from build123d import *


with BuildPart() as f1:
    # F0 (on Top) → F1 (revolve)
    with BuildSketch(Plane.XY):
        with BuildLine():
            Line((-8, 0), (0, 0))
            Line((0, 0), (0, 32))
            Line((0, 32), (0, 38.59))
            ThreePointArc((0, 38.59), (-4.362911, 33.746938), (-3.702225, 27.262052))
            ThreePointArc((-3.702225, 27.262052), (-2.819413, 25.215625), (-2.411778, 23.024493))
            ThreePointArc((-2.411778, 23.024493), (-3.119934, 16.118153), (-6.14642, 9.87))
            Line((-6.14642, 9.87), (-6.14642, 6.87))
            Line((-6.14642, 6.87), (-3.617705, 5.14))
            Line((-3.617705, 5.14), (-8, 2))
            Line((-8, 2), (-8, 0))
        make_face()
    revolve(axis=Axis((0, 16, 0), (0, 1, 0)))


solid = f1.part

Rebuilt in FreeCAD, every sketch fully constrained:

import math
import FreeCAD as App
import Part
import Sketcher
from FreeCAD import Vector
Q = App.Units.Quantity

doc = App.newDocument("Part")
body = doc.addObject("PartDesign::Body", "Body")

# Sketch on XY plane
sketch1 = body.newObject("Sketcher::SketchObject", "Sketch")
sketch1.AttachmentSupport = (doc.getObject("XY_Plane"), [""])
sketch1.MapMode = "FlatFace"
sketch1.addGeometry([
    Part.LineSegment(Vector(-8, 0, 0), Vector(0, 0, 0)),  # 0
    Part.LineSegment(Vector(0, 0, 0), Vector(0, 38.6, 0)),  # 1
    Part.ArcOfCircle(Part.Circle(Vector(3.3, 31.2, 0), Vector(0, 0, 1), 8), math.radians(114), math.radians(210)),  # 2
    Part.ArcOfCircle(Part.Circle(Vector(-12.4, 22.3, 0), Vector(0, 0, 1), 10), math.radians(4), math.radians(30)),  # 3
    Part.ArcOfCircle(Part.Circle(Vector(-22.4, 21.6, 0), Vector(0, 0, 1), 20), math.radians(-36), math.radians(4)),  # 4
    Part.LineSegment(Vector(-6.1, 9.9, 0), Vector(-6.1, 6.9, 0)),  # 5
    Part.LineSegment(Vector(-6.1, 6.9, 0), Vector(-3.6, 5.1, 0)),  # 6
    Part.LineSegment(Vector(-3.6, 5.1, 0), Vector(-8, 2, 0)),  # 7
    Part.LineSegment(Vector(-8, 2, 0), Vector(-8, 0, 0)),  # 8
], False)
sketch1.addConstraint([
    Sketcher.Constraint("Coincident", 0, 2, 1, 1),
    Sketcher.Constraint("Coincident", 1, 2, 2, 1),
    Sketcher.Constraint("Tangent", 2, 2, 3, 2),
    Sketcher.Constraint("Tangent", 3, 1, 4, 2),
    Sketcher.Constraint("Coincident", 4, 1, 5, 1),
    Sketcher.Constraint("Coincident", 5, 2, 6, 1),
    Sketcher.Constraint("Coincident", 6, 2, 7, 1),
    Sketcher.Constraint("Coincident", 7, 2, 8, 1),
    Sketcher.Constraint("Coincident", 8, 2, 0, 1),
    Sketcher.Constraint("Horizontal", 0),
    Sketcher.Constraint("Vertical", 1),
    Sketcher.Constraint("Vertical", 5),
    Sketcher.Constraint("Vertical", 8),
    Sketcher.Constraint("Coincident", 0, 2, -1, 1),
    Sketcher.Constraint("Radius", 4, Q("20.000002 mm")),
    Sketcher.Constraint("DistanceX", 0, 1, 0, 2, Q("8 mm")),
    Sketcher.Constraint("DistanceY", 5, 2, 5, 1, Q("3 mm")),
    Sketcher.Constraint("DistanceY", 8, 2, 8, 1, Q("2 mm")),
    Sketcher.Constraint("DistanceY", 1, 1, 1, 2, Q("38.59 mm")),
    Sketcher.Constraint("DistanceY", -1, 1, 4, 1, Q("9.87 mm")),
    Sketcher.Constraint("DistanceY", -1, 1, 6, 2, Q("5.14 mm")),
    Sketcher.Constraint("Radius", 2, Q("8.039654 mm")),
    Sketcher.Constraint("Radius", 3, Q("10.000007 mm")),
    Sketcher.Constraint("DistanceY", -1, 1, 2, 3, Q("31.249401 mm")),
    Sketcher.Constraint("DistanceX", 4, 3, 3, 1, Q("19.947799 mm")),
    Sketcher.Constraint("Distance", 6, Q("3.06387 mm")),
    Sketcher.Constraint("DistanceX", 3, 1, -1, 1, Q("2.411778 mm")),
])
revolution = body.newObject("PartDesign::Revolution", "Revolution")
revolution.Profile = sketch1
revolution.ReferenceAxis = (sketch1, ["V_Axis"])
revolution.Angle = 360

doc.recompute()
